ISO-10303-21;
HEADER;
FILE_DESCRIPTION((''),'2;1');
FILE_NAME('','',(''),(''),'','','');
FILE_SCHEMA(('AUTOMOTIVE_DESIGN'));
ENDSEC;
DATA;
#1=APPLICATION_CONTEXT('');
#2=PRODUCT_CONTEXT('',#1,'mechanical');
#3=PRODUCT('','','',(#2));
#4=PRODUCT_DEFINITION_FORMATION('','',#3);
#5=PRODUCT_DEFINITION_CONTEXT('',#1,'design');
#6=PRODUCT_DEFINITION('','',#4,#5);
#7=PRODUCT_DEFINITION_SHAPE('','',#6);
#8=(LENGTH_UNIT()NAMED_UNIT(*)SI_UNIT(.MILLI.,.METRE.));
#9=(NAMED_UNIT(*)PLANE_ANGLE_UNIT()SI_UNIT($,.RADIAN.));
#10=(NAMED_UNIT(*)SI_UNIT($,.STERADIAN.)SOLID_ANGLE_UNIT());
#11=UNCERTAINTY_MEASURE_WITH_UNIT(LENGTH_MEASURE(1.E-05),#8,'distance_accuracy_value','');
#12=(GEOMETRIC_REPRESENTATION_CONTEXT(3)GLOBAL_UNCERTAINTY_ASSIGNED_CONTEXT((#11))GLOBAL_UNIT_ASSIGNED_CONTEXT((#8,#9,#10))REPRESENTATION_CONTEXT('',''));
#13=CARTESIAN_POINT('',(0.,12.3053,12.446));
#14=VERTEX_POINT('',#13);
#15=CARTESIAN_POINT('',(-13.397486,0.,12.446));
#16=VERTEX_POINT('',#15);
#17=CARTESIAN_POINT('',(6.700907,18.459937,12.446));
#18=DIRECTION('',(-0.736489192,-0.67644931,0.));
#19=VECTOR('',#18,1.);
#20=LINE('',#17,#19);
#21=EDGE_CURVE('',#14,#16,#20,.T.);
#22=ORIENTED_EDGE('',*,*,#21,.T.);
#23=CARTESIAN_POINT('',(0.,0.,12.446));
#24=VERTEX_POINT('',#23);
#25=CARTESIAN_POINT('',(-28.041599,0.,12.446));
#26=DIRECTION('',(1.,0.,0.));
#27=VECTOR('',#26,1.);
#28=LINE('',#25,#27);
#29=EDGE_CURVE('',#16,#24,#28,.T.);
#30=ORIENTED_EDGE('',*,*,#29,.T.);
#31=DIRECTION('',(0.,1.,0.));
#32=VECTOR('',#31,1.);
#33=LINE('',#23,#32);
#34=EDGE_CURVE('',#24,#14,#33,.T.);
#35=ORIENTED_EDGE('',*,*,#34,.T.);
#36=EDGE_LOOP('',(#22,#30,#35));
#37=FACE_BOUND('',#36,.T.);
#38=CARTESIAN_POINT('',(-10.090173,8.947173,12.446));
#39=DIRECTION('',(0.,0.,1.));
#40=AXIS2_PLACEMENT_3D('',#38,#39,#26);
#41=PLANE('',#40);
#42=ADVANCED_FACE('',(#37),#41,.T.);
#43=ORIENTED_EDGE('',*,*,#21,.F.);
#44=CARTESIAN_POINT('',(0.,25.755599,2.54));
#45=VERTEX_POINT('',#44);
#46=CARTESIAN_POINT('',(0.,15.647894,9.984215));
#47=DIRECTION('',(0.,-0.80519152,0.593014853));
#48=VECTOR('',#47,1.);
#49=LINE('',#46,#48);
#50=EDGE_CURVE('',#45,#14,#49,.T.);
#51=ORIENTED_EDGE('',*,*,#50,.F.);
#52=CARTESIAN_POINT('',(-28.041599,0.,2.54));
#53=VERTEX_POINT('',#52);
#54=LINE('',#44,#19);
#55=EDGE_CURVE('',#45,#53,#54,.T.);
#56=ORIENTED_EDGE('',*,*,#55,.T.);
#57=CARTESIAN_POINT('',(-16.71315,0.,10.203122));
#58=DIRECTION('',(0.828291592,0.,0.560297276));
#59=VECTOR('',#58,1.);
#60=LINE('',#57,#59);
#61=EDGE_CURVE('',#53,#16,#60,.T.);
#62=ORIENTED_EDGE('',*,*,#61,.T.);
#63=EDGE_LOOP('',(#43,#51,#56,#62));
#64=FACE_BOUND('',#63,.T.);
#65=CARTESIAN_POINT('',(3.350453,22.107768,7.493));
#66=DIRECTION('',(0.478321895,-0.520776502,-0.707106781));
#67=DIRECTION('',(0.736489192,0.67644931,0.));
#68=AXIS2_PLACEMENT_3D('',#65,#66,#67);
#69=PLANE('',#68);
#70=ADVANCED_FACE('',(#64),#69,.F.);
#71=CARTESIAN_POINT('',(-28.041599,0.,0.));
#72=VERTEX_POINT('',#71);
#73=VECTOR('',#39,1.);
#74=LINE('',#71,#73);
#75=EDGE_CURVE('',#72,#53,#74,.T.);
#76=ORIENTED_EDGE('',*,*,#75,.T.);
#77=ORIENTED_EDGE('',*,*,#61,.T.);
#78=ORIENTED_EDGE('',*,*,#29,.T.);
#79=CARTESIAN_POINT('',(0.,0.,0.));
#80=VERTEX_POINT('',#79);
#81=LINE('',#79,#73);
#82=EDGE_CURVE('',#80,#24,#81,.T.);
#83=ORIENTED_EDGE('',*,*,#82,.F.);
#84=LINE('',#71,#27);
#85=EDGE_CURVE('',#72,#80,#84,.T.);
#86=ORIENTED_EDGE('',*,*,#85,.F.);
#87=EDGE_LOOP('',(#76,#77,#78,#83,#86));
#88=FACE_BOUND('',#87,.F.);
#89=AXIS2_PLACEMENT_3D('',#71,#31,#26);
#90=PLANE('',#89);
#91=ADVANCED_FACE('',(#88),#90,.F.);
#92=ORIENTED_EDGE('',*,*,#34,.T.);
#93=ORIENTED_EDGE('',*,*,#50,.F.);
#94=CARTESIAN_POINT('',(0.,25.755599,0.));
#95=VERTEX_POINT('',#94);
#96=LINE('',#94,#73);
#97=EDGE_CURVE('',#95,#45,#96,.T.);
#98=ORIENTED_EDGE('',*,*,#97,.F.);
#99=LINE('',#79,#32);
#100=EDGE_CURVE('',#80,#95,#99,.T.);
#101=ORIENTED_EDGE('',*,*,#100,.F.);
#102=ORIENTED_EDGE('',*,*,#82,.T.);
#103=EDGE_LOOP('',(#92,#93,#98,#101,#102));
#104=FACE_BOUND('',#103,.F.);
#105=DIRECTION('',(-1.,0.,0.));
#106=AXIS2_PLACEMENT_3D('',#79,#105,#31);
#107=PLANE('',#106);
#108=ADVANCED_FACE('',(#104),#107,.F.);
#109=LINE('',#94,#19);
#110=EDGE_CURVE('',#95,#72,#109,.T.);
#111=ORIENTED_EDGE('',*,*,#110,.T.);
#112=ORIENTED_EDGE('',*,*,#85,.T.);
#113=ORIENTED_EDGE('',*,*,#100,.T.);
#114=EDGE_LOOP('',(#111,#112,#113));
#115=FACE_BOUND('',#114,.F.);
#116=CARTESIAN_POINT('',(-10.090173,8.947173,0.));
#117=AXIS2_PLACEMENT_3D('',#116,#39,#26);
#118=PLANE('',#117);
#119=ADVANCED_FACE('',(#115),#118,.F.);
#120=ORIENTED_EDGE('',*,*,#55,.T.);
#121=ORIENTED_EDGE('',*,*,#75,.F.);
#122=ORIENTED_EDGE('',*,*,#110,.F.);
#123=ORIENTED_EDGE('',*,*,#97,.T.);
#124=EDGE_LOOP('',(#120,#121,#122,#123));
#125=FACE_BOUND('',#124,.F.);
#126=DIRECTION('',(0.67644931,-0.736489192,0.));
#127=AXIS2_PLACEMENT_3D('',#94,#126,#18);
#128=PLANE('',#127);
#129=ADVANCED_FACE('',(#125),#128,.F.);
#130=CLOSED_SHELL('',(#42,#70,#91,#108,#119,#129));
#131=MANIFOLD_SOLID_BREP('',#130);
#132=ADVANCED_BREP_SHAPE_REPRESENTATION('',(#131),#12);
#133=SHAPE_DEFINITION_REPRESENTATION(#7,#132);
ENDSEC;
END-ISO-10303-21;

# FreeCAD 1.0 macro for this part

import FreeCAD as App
import Part
import Sketcher

V = App.Vector
Q = App.Units.Quantity


def edges_at(feature, points):
    """Names of the edges that pass closest to the given points."""
    edges = feature.Shape.Edges
    near = lambda p: min(range(len(edges)), key=lambda i: edges[i].distToShape(Part.Vertex(*p))[0])
    return sorted({f"Edge{near(p) + 1}" for p in points})

doc = App.newDocument("Part")
body = doc.addObject("PartDesign::Body", "Body")

# Sketch on XY plane
sketch1 = body.newObject("Sketcher::SketchObject", "Sketch")
sketch1.AttachmentSupport = (doc.getObject("XY_Plane"), [""])
sketch1.MapMode = "FlatFace"
sketch1.addGeometry([
    Part.LineSegment(V(-28, 0, 0), V(0, 0, 0)),
    Part.LineSegment(V(0, 0, 0), V(0, 26, 0)),
    Part.LineSegment(V(0, 26, 0), V(-28, 0, 0)),
], False)
sketch1.addConstraint([
    Sketcher.Constraint("Coincident", 0, 2, 1, 1),
    Sketcher.Constraint("Coincident", 1, 2, 2, 1),
    Sketcher.Constraint("Coincident", 2, 2, 0, 1),
    Sketcher.Constraint("Horizontal", 0),
    Sketcher.Constraint("Vertical", 1),
    Sketcher.Constraint("Coincident", 0, 2, -1, 1),
    Sketcher.Constraint("DistanceX", 0, 1, 0, 2, Q("1.104 in")),
    Sketcher.Constraint("DistanceY", 1, 1, 1, 2, Q("1.014 in")),
])
pad1 = body.newObject("PartDesign::Pad", "Pad")
pad1.Profile = sketch1
pad1.Length = Q("0.49 in")
doc.recompute()

chamfer = body.newObject("PartDesign::Chamfer", "Chamfer")
chamfer.Base = (pad1, edges_at(pad1, [(-14.021, 12.878, 12.446)]))
chamfer.Size = Q("0.39 in")

doc.recompute()
